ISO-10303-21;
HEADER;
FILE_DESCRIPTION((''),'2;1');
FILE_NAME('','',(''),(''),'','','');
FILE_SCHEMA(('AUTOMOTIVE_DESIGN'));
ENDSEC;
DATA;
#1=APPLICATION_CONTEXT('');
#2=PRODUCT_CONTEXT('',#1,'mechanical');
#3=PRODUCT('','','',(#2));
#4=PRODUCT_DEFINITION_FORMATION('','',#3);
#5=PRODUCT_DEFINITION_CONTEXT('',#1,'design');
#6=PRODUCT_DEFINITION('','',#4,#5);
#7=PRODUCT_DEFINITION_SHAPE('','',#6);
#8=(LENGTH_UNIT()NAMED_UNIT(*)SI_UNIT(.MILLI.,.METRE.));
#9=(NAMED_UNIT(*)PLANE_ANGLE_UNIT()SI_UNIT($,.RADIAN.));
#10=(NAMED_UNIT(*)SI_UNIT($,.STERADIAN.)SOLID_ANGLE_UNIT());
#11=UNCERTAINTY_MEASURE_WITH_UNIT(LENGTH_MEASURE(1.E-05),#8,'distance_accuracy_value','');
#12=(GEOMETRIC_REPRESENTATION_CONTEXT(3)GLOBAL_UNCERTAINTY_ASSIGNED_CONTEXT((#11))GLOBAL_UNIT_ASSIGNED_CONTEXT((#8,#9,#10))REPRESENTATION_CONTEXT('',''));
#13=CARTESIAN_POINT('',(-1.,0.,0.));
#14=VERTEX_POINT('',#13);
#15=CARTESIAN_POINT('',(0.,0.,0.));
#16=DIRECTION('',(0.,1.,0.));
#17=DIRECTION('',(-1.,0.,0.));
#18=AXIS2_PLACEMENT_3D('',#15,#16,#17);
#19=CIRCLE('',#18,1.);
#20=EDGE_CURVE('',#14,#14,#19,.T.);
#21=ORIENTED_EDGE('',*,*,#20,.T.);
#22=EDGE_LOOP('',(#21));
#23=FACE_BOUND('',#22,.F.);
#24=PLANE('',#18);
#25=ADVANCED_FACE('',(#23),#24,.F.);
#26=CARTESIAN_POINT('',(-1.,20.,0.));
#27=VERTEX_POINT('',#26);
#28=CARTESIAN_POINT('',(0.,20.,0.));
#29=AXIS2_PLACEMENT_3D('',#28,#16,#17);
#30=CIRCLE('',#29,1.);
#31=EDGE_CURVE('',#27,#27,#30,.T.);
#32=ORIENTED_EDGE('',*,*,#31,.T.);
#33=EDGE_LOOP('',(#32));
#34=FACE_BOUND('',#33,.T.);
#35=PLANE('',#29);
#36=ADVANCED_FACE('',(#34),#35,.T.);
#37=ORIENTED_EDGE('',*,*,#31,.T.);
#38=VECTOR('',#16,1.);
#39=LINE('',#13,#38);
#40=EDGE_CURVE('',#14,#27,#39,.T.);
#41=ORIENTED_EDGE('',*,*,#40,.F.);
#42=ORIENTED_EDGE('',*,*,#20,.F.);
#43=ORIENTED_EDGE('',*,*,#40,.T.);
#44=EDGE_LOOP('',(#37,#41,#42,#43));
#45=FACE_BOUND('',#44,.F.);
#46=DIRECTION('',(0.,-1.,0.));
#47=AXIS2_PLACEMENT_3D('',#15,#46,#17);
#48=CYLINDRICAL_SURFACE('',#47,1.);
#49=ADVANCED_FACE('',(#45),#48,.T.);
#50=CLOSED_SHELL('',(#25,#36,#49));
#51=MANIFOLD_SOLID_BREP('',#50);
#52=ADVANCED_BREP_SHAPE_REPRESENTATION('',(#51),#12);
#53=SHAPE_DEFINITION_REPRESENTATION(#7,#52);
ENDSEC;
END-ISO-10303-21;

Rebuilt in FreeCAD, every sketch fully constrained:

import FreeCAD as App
import Part
import Sketcher

doc = App.newDocument("Part")
body = doc.addObject("PartDesign::Body", "Body")

# Sketch on XZ plane
sketch1 = body.newObject("Sketcher::SketchObject", "Sketch")
sketch1.AttachmentSupport = (doc.getObject("XZ_Plane"), [""])
sketch1.MapMode = "FlatFace"
sketch1.addGeometry(Part.Circle(App.Vector(0, 0, 0), App.Vector(0, 0, 1), 1), False)
sketch1.addConstraint([
    Sketcher.Constraint("Coincident", 0, 3, -1, 1),
    Sketcher.Constraint("Diameter", 0, 2.0),
])
pad1 = body.newObject("PartDesign::Pad", "Pad")
pad1.Profile = sketch1
pad1.Length = 20
pad1.Reversed = True

doc.recompute()
